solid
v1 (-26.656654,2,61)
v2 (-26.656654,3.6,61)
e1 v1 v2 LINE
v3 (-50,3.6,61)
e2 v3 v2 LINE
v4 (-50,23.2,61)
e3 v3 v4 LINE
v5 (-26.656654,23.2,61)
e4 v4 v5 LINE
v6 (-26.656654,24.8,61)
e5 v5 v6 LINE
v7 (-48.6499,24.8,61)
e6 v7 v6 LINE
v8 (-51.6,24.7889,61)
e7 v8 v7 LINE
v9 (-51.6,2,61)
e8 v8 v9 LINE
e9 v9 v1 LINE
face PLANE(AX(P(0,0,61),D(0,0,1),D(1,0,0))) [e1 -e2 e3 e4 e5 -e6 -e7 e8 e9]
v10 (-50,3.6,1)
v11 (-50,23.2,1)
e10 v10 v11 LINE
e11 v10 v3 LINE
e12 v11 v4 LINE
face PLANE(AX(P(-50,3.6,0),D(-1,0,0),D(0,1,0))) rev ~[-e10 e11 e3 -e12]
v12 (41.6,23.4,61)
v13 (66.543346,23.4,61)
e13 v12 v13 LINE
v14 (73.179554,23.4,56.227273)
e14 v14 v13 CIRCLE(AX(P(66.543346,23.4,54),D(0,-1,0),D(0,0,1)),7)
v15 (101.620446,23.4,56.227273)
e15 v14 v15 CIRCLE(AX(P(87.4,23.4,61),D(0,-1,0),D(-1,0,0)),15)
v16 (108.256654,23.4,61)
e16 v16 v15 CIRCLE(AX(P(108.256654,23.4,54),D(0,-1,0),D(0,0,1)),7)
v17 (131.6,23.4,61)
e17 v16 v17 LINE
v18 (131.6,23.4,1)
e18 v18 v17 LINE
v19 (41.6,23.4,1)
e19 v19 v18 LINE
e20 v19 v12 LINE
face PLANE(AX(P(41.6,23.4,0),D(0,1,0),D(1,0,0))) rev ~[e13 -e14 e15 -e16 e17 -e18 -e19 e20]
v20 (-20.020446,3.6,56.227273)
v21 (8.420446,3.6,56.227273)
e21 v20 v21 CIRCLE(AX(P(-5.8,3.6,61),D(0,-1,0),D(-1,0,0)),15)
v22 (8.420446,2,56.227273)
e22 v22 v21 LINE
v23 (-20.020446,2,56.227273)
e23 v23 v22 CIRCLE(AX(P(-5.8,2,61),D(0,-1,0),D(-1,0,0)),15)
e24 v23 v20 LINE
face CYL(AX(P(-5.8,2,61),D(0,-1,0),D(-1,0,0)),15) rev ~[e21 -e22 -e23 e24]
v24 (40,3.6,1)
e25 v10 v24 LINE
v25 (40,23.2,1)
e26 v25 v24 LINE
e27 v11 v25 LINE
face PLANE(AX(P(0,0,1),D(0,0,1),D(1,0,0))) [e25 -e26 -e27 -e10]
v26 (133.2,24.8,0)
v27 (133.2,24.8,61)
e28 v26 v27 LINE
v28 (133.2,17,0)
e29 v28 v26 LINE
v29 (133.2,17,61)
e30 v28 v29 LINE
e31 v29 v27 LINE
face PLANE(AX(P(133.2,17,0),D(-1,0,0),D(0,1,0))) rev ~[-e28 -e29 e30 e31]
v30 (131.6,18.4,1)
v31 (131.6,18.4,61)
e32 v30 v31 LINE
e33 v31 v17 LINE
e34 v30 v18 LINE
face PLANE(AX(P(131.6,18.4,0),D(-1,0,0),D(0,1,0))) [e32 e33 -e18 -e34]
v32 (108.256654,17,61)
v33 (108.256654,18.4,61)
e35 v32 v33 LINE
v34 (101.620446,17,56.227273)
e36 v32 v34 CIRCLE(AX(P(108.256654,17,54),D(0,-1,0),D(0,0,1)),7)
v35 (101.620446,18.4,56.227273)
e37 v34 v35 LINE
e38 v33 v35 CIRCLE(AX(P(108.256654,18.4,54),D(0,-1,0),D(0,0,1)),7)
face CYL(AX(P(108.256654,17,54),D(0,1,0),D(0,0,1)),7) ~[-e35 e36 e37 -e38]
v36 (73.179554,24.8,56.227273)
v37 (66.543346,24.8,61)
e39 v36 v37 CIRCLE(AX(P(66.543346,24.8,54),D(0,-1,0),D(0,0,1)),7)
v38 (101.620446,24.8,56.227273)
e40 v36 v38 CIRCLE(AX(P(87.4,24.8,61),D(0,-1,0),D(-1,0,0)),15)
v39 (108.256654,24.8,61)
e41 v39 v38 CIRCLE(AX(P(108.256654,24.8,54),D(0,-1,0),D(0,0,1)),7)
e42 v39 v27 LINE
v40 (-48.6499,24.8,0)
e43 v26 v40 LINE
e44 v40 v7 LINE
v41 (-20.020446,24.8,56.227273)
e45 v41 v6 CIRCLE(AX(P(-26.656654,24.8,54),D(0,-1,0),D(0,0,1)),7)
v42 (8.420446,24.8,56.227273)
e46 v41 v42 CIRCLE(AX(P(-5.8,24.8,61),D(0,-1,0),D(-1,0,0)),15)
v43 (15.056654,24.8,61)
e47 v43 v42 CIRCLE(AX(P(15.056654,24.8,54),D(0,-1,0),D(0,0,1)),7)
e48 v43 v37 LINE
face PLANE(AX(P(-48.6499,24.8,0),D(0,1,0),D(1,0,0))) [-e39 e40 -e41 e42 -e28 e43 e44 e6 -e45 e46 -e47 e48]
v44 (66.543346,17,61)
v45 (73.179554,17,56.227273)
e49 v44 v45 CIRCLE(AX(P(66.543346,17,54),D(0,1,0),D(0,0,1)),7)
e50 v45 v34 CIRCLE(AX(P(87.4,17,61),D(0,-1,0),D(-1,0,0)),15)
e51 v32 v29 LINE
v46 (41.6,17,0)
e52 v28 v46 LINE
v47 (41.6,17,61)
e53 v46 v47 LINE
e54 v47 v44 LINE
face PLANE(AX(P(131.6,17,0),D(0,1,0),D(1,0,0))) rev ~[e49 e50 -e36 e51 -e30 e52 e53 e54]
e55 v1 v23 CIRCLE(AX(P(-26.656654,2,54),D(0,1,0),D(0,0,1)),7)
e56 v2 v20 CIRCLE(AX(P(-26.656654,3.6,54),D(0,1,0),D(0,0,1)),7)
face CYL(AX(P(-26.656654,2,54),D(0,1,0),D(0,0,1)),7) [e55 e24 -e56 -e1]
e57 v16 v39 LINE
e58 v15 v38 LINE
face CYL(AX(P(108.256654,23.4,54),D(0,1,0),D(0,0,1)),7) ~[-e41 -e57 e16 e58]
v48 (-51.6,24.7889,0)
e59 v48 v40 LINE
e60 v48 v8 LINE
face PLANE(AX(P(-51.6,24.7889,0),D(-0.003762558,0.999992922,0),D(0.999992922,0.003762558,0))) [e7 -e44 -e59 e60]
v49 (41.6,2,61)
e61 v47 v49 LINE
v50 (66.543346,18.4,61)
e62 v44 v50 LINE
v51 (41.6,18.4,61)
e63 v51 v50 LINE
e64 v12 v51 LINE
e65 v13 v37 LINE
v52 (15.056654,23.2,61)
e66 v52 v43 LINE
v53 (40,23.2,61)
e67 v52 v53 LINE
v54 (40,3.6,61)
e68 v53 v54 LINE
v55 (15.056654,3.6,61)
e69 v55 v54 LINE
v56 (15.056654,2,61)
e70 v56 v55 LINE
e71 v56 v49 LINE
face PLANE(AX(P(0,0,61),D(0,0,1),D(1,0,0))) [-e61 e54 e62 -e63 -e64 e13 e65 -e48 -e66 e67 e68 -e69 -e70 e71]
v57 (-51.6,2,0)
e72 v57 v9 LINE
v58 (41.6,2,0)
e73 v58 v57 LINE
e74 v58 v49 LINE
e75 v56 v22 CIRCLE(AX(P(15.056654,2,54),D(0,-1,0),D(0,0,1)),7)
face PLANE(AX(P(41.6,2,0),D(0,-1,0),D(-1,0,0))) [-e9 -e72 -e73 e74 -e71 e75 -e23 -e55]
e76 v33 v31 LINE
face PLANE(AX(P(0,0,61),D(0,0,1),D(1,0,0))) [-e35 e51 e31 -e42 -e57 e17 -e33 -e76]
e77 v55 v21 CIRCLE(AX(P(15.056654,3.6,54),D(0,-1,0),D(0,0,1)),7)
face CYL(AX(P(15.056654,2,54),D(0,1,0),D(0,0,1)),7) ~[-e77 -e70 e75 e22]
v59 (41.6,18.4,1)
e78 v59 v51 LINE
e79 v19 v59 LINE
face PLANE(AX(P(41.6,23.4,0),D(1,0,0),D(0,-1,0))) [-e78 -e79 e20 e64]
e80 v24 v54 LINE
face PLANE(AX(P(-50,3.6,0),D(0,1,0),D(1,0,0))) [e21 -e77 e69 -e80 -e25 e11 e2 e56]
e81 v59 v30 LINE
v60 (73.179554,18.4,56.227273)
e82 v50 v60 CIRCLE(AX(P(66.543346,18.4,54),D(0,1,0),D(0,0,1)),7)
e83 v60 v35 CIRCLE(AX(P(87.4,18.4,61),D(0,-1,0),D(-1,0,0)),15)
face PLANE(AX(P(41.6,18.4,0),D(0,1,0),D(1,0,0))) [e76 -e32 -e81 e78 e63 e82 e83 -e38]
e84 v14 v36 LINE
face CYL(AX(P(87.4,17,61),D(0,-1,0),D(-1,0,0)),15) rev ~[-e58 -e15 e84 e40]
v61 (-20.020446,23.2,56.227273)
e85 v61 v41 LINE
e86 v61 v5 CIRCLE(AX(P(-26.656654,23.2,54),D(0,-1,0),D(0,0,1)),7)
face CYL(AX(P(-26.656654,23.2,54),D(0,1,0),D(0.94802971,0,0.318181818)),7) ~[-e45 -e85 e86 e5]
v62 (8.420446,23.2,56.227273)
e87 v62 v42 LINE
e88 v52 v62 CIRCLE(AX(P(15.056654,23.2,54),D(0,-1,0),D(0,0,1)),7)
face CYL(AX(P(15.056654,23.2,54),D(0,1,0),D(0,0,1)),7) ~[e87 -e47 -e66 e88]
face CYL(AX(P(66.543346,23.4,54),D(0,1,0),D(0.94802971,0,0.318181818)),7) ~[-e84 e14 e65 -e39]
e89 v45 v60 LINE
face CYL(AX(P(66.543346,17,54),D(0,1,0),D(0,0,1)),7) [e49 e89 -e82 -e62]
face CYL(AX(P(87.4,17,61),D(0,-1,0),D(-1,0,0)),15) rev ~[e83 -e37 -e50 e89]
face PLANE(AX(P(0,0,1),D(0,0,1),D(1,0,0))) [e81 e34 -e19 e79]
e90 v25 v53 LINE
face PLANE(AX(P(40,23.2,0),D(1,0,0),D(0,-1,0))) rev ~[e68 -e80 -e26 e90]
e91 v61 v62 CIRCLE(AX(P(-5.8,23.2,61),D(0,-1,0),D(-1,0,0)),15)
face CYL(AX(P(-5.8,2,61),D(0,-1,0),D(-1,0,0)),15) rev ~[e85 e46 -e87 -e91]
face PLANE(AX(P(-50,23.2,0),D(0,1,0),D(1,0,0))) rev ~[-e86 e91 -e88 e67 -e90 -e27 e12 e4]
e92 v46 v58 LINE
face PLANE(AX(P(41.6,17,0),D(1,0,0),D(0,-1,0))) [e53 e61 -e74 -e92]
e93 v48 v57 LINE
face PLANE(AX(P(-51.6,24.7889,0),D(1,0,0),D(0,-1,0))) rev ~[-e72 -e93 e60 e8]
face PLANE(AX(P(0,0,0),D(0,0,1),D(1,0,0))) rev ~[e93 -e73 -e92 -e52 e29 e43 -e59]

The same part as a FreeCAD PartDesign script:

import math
import FreeCAD as App
import Part
import Sketcher

V = App.Vector
Q = App.Units.Quantity


def edges_at(feature, points):
    """Names of the edges that pass closest to the given points."""
    edges = feature.Shape.Edges
    near = lambda p: min(range(len(edges)), key=lambda i: edges[i].distToShape(Part.Vertex(*p))[0])
    return sorted({f"Edge{near(p) + 1}" for p in points})

doc = App.newDocument("Part")
body = doc.addObject("PartDesign::Body", "Body")

# Sketch on XY plane
sketch1 = body.newObject("Sketcher::SketchObject", "Sketch")
sketch1.AttachmentSupport = (doc.getObject("XY_Plane"), [""])
sketch1.MapMode = "FlatFace"
sketch1.addGeometry([
    Part.LineSegment(V(133.2, 24.8, 0), V(-48.6, 24.8, 0)),  # 0
    Part.LineSegment(V(-48.6, 24.8, 0), V(-51.6, 24.8, 0)),  # 1
    Part.LineSegment(V(-51.6, 24.8, 0), V(-51.6, 2, 0)),  # 2
    Part.LineSegment(V(-51.6, 2, 0), V(41.6, 2, 0)),  # 3
    Part.LineSegment(V(41.6, 2, 0), V(41.6, 17, 0)),  # 4
    Part.LineSegment(V(41.6, 17, 0), V(133.2, 17, 0)),  # 5
    Part.LineSegment(V(133.2, 17, 0), V(133.2, 24.8, 0)),  # 6
    Part.LineSegment(V(-50, 23.2, 0), V(40, 23.2, 0)),  # 7
    Part.LineSegment(V(40, 23.2, 0), V(40, 3.6, 0)),  # 8
    Part.LineSegment(V(40, 3.6, 0), V(-50, 3.6, 0)),  # 9
    Part.LineSegment(V(-50, 3.6, 0), V(-50, 23.2, 0)),  # 10
    Part.LineSegment(V(131.6, 18.4, 0), V(41.6, 18.4, 0)),  # 11
    Part.LineSegment(V(41.6, 18.4, 0), V(41.6, 23.4, 0)),  # 12
    Part.LineSegment(V(41.6, 23.4, 0), V(131.6, 23.4, 0)),  # 13
    Part.LineSegment(V(131.6, 23.4, 0), V(131.6, 18.4, 0)),  # 14
], False)
sketch1.addConstraint([
    Sketcher.Constraint("Coincident", 0, 2, 1, 1),
    Sketcher.Constraint("Coincident", 1, 2, 2, 1),
    Sketcher.Constraint("Coincident", 2, 2, 3, 1),
    Sketcher.Constraint("Coincident", 3, 2, 4, 1),
    Sketcher.Constraint("Coincident", 4, 2, 5, 1),
    Sketcher.Constraint("Coincident", 5, 2, 6, 1),
    Sketcher.Constraint("Coincident", 6, 2, 0, 1),
    Sketcher.Constraint("Coincident", 7, 2, 8, 1),
    Sketcher.Constraint("Coincident", 8, 2, 9, 1),
    Sketcher.Constraint("Coincident", 9, 2, 10, 1),
    Sketcher.Constraint("Coincident", 10, 2, 7, 1),
    Sketcher.Constraint("Coincident", 11, 2, 12, 1),
    Sketcher.Constraint("Coincident", 12, 2, 13, 1),
    Sketcher.Constraint("Coincident", 13, 2, 14, 1),
    Sketcher.Constraint("Coincident", 14, 2, 11, 1),
    Sketcher.Constraint("Horizontal", 0),
    Sketcher.Constraint("Vertical", 2),
    Sketcher.Constraint("Horizontal", 3),
    Sketcher.Constraint("Vertical", 4),
    Sketcher.Constraint("Horizontal", 5),
    Sketcher.Constraint("Vertical", 6),
    Sketcher.Constraint("Horizontal", 7),
    Sketcher.Constraint("Vertical", 8),
    Sketcher.Constraint("Horizontal", 9),
    Sketcher.Constraint("Vertical", 10),
    Sketcher.Constraint("Horizontal", 11),
    Sketcher.Constraint("Vertical", 12),
    Sketcher.Constraint("Horizontal", 13),
    Sketcher.Constraint("Vertical", 14),
    Sketcher.Constraint("Vertical", 4, 2, 11, 2),
    Sketcher.Constraint("Equal", 9, 11),
    Sketcher.Constraint("DistanceX", 7, 1, 7, 2, Q("90 mm")),
    Sketcher.Constraint("DistanceY", 4, 1, 4, 2, Q("15 mm")),
    Sketcher.Constraint("DistanceX", 7, 2, 4, 2, Q("1.6 mm")),
    Sketcher.Constraint("DistanceY", 7, 2, 0, 2, Q("1.6 mm")),
    Sketcher.Constraint("DistanceY", 3, 2, 8, 2, Q("1.6 mm")),
    Sketcher.Constraint("DistanceX", 2, 2, 9, 2, Q("1.6 mm")),
    Sketcher.Constraint("DistanceY", 4, 2, 11, 2, Q("1.4 mm")),
    Sketcher.Constraint("DistanceX", 13, 2, 6, 2, Q("1.6 mm")),
    Sketcher.Constraint("DistanceY", 13, 2, 6, 2, Q("1.4 mm")),
    Sketcher.Constraint("DistanceY", 12, 1, 12, 2, Q("5 mm")),
    Sketcher.Constraint("DistanceY", -1, 1, 2, 2, Q("2 mm")),
    Sketcher.Constraint("DistanceX", -1, 1, 7, 2, Q("40 mm")),
    Sketcher.Constraint("DistanceX", 0, 2, 0, 1, Q("181.85 mm")),
    Sketcher.Constraint("DistanceY", 2, 2, 2, 1, Q("22.789 mm")),
])
pad1 = body.newObject("PartDesign::Pad", "Pad")
pad1.Profile = sketch1
pad1.Length = 61

# Sketch on XY plane
sketch2 = body.newObject("Sketcher::SketchObject", "Sketch001")
sketch2.AttachmentSupport = (doc.getObject("XY_Plane"), [""])
sketch2.MapMode = "FlatFace"
sketch2.addGeometry([
    Part.LineSegment(V(40, 4, 0), V(40, 23, 0)),  # 0
    Part.LineSegment(V(40, 23, 0), V(-50, 23, 0)),  # 1
    Part.LineSegment(V(-50, 23, 0), V(-50, 4, 0)),  # 2
    Part.LineSegment(V(-50, 4, 0), V(40, 4, 0)),  # 3
    Part.LineSegment(V(42, 23, 0), V(42, 18, 0)),  # 4
    Part.LineSegment(V(42, 18, 0), V(132, 18, 0)),  # 5
    Part.LineSegment(V(132, 18, 0), V(132, 23, 0)),  # 6
    Part.LineSegment(V(132, 23, 0), V(42, 23, 0)),  # 7
], False)
sketch2.addConstraint([
    Sketcher.Constraint("Coincident", 0, 2, 1, 1),
    Sketcher.Constraint("Coincident", 1, 2, 2, 1),
    Sketcher.Constraint("Coincident", 2, 2, 3, 1),
    Sketcher.Constraint("Coincident", 3, 2, 0, 1),
    Sketcher.Constraint("Coincident", 4, 2, 5, 1),
    Sketcher.Constraint("Coincident", 5, 2, 6, 1),
    Sketcher.Constraint("Coincident", 6, 2, 7, 1),
    Sketcher.Constraint("Coincident", 7, 2, 4, 1),
    Sketcher.Constraint("Vertical", 0),
    Sketcher.Constraint("Horizontal", 1),
    Sketcher.Constraint("Vertical", 2),
    Sketcher.Constraint("Horizontal", 3),
    Sketcher.Constraint("Vertical", 4),
    Sketcher.Constraint("Horizontal", 5),
    Sketcher.Constraint("Vertical", 6),
    Sketcher.Constraint("Horizontal", 7),
    Sketcher.Constraint("Equal", 3, 5),
    Sketcher.Constraint("DistanceX", 1, 2, 1, 1, Q("90 mm")),
    Sketcher.Constraint("DistanceX", 0, 2, 4, 2, Q("1.6 mm")),
    Sketcher.Constraint("DistanceY", 4, 2, 4, 1, Q("5 mm")),
    Sketcher.Constraint("DistanceY", 0, 1, 0, 2, Q("19.6 mm")),
    Sketcher.Constraint("DistanceX", -1, 1, 0, 2, Q("40 mm")),
    Sketcher.Constraint("DistanceY", -1, 1, 0, 2, Q("23.2 mm")),
    Sketcher.Constraint("DistanceY", -1, 1, 4, 2, Q("18.4 mm")),
])
pad2 = body.newObject("PartDesign::Pad", "Pad001")
pad2.Profile = sketch2
pad2.Length = 1

# Sketch on XZ plane
sketch3 = body.newObject("Sketcher::SketchObject", "Sketch002")
sketch3.AttachmentSupport = (doc.getObject("XZ_Plane"), [""])
sketch3.MapMode = "FlatFace"
sketch3.AttachmentOffset = App.Placement(V(0, 0, -2), App.Rotation())
sketch3.addGeometry([
    Part.LineSegment(V(9, 61, 0), V(-21, 61, 0)),
    Part.ArcOfCircle(Part.Circle(V(-6, 61, 0), V(0, 0, 1), 15), math.radians(180), math.radians(360)),
], False)
sketch3.addConstraint([
    Sketcher.Constraint("Coincident", 0, 1, 1, 2),
    Sketcher.Constraint("Coincident", 1, 1, 0, 2),
    Sketcher.Constraint("Horizontal", 0),
    Sketcher.Constraint("Horizontal", 1, 3, 0, 1),
    Sketcher.Constraint("Radius", 1, Q("15 mm")),
    Sketcher.Constraint("DistanceY", -1, 1, 1, 3, Q("61 mm")),
    Sketcher.Constraint("DistanceX", 1, 3, -1, 1, Q("5.8 mm")),
])
pocket1 = body.newObject("PartDesign::Pocket", "Pocket")
pocket1.Profile = sketch3
pocket1.Length = 41

# Sketch on XZ plane
sketch4 = body.newObject("Sketcher::SketchObject", "Sketch003")
sketch4.AttachmentSupport = (doc.getObject("XZ_Plane"), [""])
sketch4.MapMode = "FlatFace"
sketch4.AttachmentOffset = App.Placement(V(0, 0, -17), App.Rotation())
sketch4.addGeometry([
    Part.LineSegment(V(102, 61, 0), V(72, 61, 0)),
    Part.ArcOfCircle(Part.Circle(V(87, 61, 0), V(0, 0, 1), 15), math.radians(180), math.radians(360)),
], False)
sketch4.addConstraint([
    Sketcher.Constraint("Coincident", 0, 1, 1, 2),
    Sketcher.Constraint("Coincident", 1, 1, 0, 2),
    Sketcher.Constraint("Horizontal", 0),
    Sketcher.Constraint("Horizontal", 1, 3, 0, 1),
    Sketcher.Constraint("Radius", 1, Q("15 mm")),
    Sketcher.Constraint("DistanceY", -1, 1, 1, 3, Q("61 mm")),
    Sketcher.Constraint("DistanceX", -1, 1, 1, 3, Q("87.4 mm")),
])
pocket2 = body.newObject("PartDesign::Pocket", "Pocket001")
pocket2.Profile = sketch4
pocket2.Length = 28
doc.recompute()

fillet = body.newObject("PartDesign::Fillet", "Fillet")
fillet.Base = (pocket2, edges_at(pocket2, [
    (-20.8, 24, 61),
    (-20.8, 2.8, 61),
    (9.2, 2.8, 61),
    (9.2, 24, 61),
    (72.4, 24.1, 61),
    (72.4, 17.7, 61),
    (102.4, 17.7, 61),
    (102.4, 24.1, 61),
]))
fillet.Radius = 7

doc.recompute()
